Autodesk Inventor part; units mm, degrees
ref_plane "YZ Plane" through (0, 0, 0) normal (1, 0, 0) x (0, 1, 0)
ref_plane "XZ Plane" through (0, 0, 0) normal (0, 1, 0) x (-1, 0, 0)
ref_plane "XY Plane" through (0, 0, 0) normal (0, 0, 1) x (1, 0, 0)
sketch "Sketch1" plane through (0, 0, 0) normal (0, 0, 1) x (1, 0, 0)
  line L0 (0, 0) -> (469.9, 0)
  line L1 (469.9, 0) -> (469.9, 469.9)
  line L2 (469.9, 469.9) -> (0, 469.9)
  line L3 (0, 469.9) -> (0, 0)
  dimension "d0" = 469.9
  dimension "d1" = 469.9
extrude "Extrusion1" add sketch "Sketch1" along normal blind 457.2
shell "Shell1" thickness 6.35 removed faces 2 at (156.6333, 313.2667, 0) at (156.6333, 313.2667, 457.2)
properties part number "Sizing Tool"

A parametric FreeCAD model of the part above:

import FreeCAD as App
import Part
import Sketcher

V = App.Vector
Q = App.Units.Quantity


def faces_at(feature, points):
    """Names of the faces that lie closest to the given points."""
    faces = feature.Shape.Faces
    near = lambda p: min(range(len(faces)), key=lambda i: faces[i].distToShape(Part.Vertex(*p))[0])
    return sorted({f"Face{near(p) + 1}" for p in points})

doc = App.newDocument("Part")
body = doc.addObject("PartDesign::Body", "Body")

# Sketch on XY plane
sketch1 = body.newObject("Sketcher::SketchObject", "Sketch")
sketch1.AttachmentSupport = (doc.getObject("XY_Plane"), [""])
sketch1.MapMode = "FlatFace"
sketch1.addGeometry(Part.LineSegment(V(0, 470, 0), V(0, 0, 0)), False)
sketch1.addGeometry(Part.LineSegment(V(0, 0, 0), V(470, 0, 0)), False)
sketch1.addGeometry(Part.LineSegment(V(470, 0, 0), V(470, 470, 0)), False)
sketch1.addGeometry(Part.LineSegment(V(470, 470, 0), V(0, 470, 0)), False)
sketch1.addConstraint(Sketcher.Constraint("Coincident", 0, 2, 1, 1))
sketch1.addConstraint(Sketcher.Constraint("Coincident", 1, 2, 2, 1))
sketch1.addConstraint(Sketcher.Constraint("Coincident", 2, 2, 3, 1))
sketch1.addConstraint(Sketcher.Constraint("Coincident", 3, 2, 0, 1))
sketch1.addConstraint(Sketcher.Constraint("Vertical", 0))
sketch1.addConstraint(Sketcher.Constraint("Horizontal", 1))
sketch1.addConstraint(Sketcher.Constraint("Vertical", 2))
sketch1.addConstraint(Sketcher.Constraint("Horizontal", 3))
sketch1.addConstraint(Sketcher.Constraint("Coincident", 0, 2, -1, 1))
sketch1.addConstraint(Sketcher.Constraint("Equal", 3, 0))
sketch1.addConstraint(Sketcher.Constraint("DistanceX", 1, 1, 1, 2, Q("18.5 in")))
pad1 = body.newObject("PartDesign::Pad", "Pad")
pad1.Profile = sketch1
pad1.Length = Q("18 in")
doc.recompute()

thickness = body.newObject("PartDesign::Thickness", "Thickness")
thickness.Base = (pad1, faces_at(pad1, [(156.633, 313.267, 0), (156.633, 313.267, 457.2)]))
thickness.Value = Q("0.25 in")
thickness.Reversed = True
thickness.Join = "Intersection"

doc.recompute()
